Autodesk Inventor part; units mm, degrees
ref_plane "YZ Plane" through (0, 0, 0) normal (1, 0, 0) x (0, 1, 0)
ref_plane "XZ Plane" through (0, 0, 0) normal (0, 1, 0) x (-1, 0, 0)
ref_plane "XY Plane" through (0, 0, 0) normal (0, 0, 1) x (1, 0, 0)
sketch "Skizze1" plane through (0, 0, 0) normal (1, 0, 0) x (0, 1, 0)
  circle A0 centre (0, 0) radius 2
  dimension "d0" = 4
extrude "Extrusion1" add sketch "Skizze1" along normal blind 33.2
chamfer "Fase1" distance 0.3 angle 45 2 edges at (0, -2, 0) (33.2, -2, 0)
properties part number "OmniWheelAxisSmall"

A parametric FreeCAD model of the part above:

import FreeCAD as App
import Part
import Sketcher
from FreeCAD import Vector


def edges_at(feature, points):
    """Names of the edges that pass closest to the given points."""
    edges = feature.Shape.Edges
    near = lambda p: min(range(len(edges)), key=lambda i: edges[i].distToShape(Part.Vertex(*p))[0])
    return sorted({f"Edge{near(p) + 1}" for p in points})

doc = App.newDocument("Part")
body = doc.addObject("PartDesign::Body", "Body")

# Sketch on YZ plane
sketch1 = doc.addObject("Sketcher::SketchObject", "Sketch")
body.addObject(sketch1)
sketch1.AttachmentSupport = (doc.YZ_Plane, [""])
sketch1.MapMode = "FlatFace"
sketch1.addGeometry(Part.Circle(Vector(0, 0, 0), Vector(0, 0, 1), 2), False)
sketch1.addConstraint(Sketcher.Constraint("Coincident", 0, 3, -1, 1))
sketch1.addConstraint(Sketcher.Constraint("Diameter", 0, 4.0))
pad1 = doc.addObject("PartDesign::Pad", "Pad")
body.addObject(pad1)
pad1.Profile = sketch1
pad1.Length = 33.2
doc.recompute()

chamfer = doc.addObject("PartDesign::Chamfer", "Chamfer")
body.addObject(chamfer)
chamfer.Base = (pad1, edges_at(pad1, [(0, -2, 0), (33.2, -2, 0)]))
chamfer.Size = 0.3

doc.recompute()
